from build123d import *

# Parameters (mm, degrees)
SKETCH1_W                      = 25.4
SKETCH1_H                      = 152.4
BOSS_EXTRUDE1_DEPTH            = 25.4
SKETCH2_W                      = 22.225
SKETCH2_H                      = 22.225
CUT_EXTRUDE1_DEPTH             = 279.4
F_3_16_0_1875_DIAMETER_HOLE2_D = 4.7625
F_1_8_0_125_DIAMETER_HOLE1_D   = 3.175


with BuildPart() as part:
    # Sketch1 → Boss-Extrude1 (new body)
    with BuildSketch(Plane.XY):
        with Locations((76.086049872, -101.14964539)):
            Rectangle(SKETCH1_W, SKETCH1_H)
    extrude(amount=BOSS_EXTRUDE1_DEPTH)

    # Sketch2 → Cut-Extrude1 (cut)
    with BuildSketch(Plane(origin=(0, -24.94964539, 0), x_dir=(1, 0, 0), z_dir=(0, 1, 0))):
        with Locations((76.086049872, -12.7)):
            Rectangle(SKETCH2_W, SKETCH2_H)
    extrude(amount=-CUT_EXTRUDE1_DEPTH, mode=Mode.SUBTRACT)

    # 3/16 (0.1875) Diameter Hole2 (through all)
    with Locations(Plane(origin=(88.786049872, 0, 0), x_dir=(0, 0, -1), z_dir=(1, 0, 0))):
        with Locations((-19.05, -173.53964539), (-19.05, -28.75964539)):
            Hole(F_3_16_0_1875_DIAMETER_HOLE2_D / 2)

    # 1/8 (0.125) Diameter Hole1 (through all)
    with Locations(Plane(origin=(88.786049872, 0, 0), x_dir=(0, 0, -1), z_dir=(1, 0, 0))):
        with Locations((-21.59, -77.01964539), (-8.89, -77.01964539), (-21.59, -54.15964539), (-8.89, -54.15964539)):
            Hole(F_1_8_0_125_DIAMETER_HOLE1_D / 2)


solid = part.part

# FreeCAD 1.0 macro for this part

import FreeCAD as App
import Part
import Sketcher
from FreeCAD import Vector
Q = App.Units.Quantity


def add_polygon(sketch, points):
    """Adds a closed chain of lines whose ends are joined by coincident constraints."""
    first, n = sketch.GeometryCount, len(points)
    for a, b in zip(points, points[1:] + points[:1]):
        sketch.addGeometry(Part.LineSegment(App.Vector(*a, 0), App.Vector(*b, 0)), False)
    for i in range(n):
        sketch.addConstraint(Sketcher.Constraint("Coincident", first + i, 2, first + (i + 1) % n, 1))

doc = App.newDocument("Part")
params = doc.addObject("Spreadsheet::Sheet", "Params")
for row, (alias, value) in enumerate([
    ("sketch1_width", "1 in"),
    ("sketch1_height", "6 in"),
    ("pad1_length", "1 in"),
    ("sketch2_width", "0.875 in"),
    ("pocket1_length", "11 in"),
    ("sketch3_diameter", "0.1875 in"),
    ("hole_diameter", "0.1875 in"),
    ("sketch4_diameter", "0.125 in"),
    ("hole2_diameter", "0.125 in"),
], start=1):
    params.set(f"A{row}", alias)
    params.set(f"B{row}", "=" + value)
    params.setAlias(f"B{row}", alias)

body = doc.addObject("PartDesign::Body", "Body")

sketch1 = doc.addObject("Sketcher::SketchObject", "Sketch")
body.addObject(sketch1)
sketch1.AttachmentSupport = (doc.XY_Plane, [""])
sketch1.MapMode = "FlatFace"
add_polygon(sketch1, [(63, -25), (63, -177), (89, -177), (89, -25)])
sketch1.addConstraint([
    Sketcher.Constraint("Vertical", 0),
    Sketcher.Constraint("Horizontal", 1),
    Sketcher.Constraint("Vertical", 2),
    Sketcher.Constraint("Horizontal", 3),
    Sketcher.Constraint("DistanceX", 1, 1, 1, 2, Q("1 in")),
    Sketcher.Constraint("DistanceY", 0, 2, 0, 1, Q("6 in")),
    Sketcher.Constraint("DistanceX", -1, 1, 0, 2, 63.38605),
    Sketcher.Constraint("DistanceY", 0, 2, -1, 1, 177.349645),
])
sketch1.setExpression("Constraints[8]", "Params.sketch1_width")
sketch1.setExpression("Constraints[9]", "Params.sketch1_height")
pad1 = doc.addObject("PartDesign::Pad", "Pad")
body.addObject(pad1)
pad1.Profile = sketch1
pad1.setExpression("Length", "Params.pad1_length")

sketch2 = doc.addObject("Sketcher::SketchObject", "Sketch001")
body.addObject(sketch2)
sketch2.AttachmentSupport = (doc.XZ_Plane, [""])
sketch2.MapMode = "FlatFace"
sketch2.AttachmentOffset = App.Placement(Vector(0, 0, 24.949645), App.Rotation())
add_polygon(sketch2, [(65, 2), (65, 24), (87, 24), (87, 2)])
sketch2.addConstraint([
    Sketcher.Constraint("Vertical", 0),
    Sketcher.Constraint("Horizontal", 1),
    Sketcher.Constraint("Vertical", 2),
    Sketcher.Constraint("Horizontal", 3),
    Sketcher.Constraint("Equal", 3, 0),
    Sketcher.Constraint("DistanceX", 1, 1, 1, 2, Q("0.875 in")),
    Sketcher.Constraint("DistanceY", -1, 1, 0, 2, Q("0.9375 in")),
    Sketcher.Constraint("DistanceX", -1, 1, 0, 2, 64.97355),
])
sketch2.setExpression("Constraints[9]", "Params.sketch2_width")
pocket1 = doc.addObject("PartDesign::Pocket", "Pocket")
body.addObject(pocket1)
pocket1.Profile = sketch2
pocket1.setExpression("Length", "Params.pocket1_length")
pocket1.Reversed = True

sketch3 = doc.addObject("Sketcher::SketchObject", "Sketch002")
body.addObject(sketch3)
sketch3.AttachmentSupport = (doc.YZ_Plane, [""])
sketch3.MapMode = "FlatFace"
sketch3.AttachmentOffset = App.Placement(Vector(0, 0, 88.78605), App.Rotation())
sketch3.addGeometry([
    Part.Circle(Vector(-173.5, 19.1, 0), Vector(0, 0, 1), 2.4),
    Part.Circle(Vector(-28.8, 19.1, 0), Vector(0, 0, 1), 2.4),
], False)
sketch3.addConstraint([
    Sketcher.Constraint("Equal", 0, 1),
    Sketcher.Constraint("Horizontal", 0, 3, 1, 3),
    Sketcher.Constraint("Diameter", 0, Q("0.1875 in")),
    Sketcher.Constraint("DistanceX", 0, 3, 1, 3, Q("5.7 in")),
    Sketcher.Constraint("DistanceY", -1, 1, 0, 3, Q("0.75 in")),
    Sketcher.Constraint("DistanceX", 0, 3, -1, 1, 173.539645),
])
sketch3.setExpression("Constraints[2]", "Params.sketch3_diameter")
doc.recompute()
hole = doc.addObject("PartDesign::Hole", "Hole")
body.addObject(hole)
hole.Profile = sketch3
hole.ThreadType = "None"
hole.setExpression("Diameter", "Params.hole_diameter")
hole.DepthType = "ThroughAll"

sketch4 = doc.addObject("Sketcher::SketchObject", "Sketch003")
body.addObject(sketch4)
sketch4.AttachmentSupport = (doc.YZ_Plane, [""])
sketch4.MapMode = "FlatFace"
sketch4.AttachmentOffset = App.Placement(Vector(0, 0, 88.78605), App.Rotation())
sketch4.addGeometry([
    Part.Circle(Vector(-77, 21.6, 0), Vector(0, 0, 1), 1.6),
    Part.Circle(Vector(-77, 8.9, 0), Vector(0, 0, 1), 1.6),
    Part.Circle(Vector(-54.2, 21.6, 0), Vector(0, 0, 1), 1.6),
    Part.Circle(Vector(-54.2, 8.9, 0), Vector(0, 0, 1), 1.6),
], False)
sketch4.addConstraint([
    Sketcher.Constraint("Equal", 0, 1),
    Sketcher.Constraint("Equal", 1, 2),
    Sketcher.Constraint("Equal", 2, 3),
    Sketcher.Constraint("Horizontal", 0, 3, 2, 3),
    Sketcher.Constraint("Horizontal", 1, 3, 3, 3),
    Sketcher.Constraint("Vertical", 0, 3, 1, 3),
    Sketcher.Constraint("Vertical", 2, 3, 3, 3),
    Sketcher.Constraint("Diameter", 0, Q("0.125 in")),
    Sketcher.Constraint("DistanceY", 1, 3, 0, 3, Q("0.5 in")),
    Sketcher.Constraint("DistanceX", 0, 3, 2, 3, Q("0.9 in")),
    Sketcher.Constraint("DistanceY", -1, 1, 0, 3, Q("0.85 in")),
    Sketcher.Constraint("DistanceX", 0, 3, -1, 1, 77.019645),
])
sketch4.setExpression("Constraints[7]", "Params.sketch4_diameter")
doc.recompute()
hole2 = doc.addObject("PartDesign::Hole", "Hole001")
body.addObject(hole2)
hole2.Profile = sketch4
hole2.ThreadType = "None"
hole2.setExpression("Diameter", "Params.hole2_diameter")
hole2.DepthType = "ThroughAll"

doc.recompute()
